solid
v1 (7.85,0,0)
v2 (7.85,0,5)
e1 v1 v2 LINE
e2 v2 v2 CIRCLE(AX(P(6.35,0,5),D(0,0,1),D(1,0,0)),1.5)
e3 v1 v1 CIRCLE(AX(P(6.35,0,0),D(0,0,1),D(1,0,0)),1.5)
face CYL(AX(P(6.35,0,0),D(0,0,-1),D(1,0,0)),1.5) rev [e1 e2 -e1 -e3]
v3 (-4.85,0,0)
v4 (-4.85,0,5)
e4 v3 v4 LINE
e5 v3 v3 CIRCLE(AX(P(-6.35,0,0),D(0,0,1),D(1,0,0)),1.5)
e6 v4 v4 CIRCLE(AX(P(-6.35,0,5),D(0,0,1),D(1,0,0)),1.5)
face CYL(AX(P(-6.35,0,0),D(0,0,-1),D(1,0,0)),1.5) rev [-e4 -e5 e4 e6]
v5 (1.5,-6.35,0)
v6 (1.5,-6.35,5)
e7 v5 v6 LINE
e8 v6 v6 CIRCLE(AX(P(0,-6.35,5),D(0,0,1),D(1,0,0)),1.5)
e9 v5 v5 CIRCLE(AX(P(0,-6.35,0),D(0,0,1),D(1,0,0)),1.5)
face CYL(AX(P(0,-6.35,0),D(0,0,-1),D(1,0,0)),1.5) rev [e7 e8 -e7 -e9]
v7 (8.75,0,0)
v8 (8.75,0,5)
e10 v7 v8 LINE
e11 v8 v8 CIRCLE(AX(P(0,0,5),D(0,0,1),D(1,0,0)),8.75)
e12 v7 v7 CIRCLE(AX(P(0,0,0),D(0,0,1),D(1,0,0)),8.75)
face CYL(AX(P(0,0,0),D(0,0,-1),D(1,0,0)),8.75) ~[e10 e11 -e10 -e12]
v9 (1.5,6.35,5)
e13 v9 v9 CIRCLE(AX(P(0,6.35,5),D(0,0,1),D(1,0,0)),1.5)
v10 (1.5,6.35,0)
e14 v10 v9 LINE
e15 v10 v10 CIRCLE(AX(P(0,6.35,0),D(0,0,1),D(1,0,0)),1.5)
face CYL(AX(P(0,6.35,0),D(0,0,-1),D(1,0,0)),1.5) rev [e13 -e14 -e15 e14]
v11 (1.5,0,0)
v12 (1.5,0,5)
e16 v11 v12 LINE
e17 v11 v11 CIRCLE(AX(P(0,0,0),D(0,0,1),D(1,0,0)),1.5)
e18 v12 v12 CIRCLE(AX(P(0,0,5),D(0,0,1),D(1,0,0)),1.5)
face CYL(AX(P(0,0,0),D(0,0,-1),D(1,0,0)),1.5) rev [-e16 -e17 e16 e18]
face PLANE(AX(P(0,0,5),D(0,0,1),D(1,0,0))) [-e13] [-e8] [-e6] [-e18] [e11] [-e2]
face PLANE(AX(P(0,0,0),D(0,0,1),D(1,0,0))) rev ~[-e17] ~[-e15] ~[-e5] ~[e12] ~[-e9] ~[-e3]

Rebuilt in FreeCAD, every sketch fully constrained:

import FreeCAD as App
import Part
import Sketcher
from FreeCAD import Vector
Q = App.Units.Quantity

doc = App.newDocument("Part")
params = doc.addObject("Spreadsheet::Sheet", "Params")
for row, (alias, value) in enumerate([
    ("sketch1_diameter", "3 mm"),
    ("sketch1_diameter2", "17.5 mm"),
    ("pad1_length", "5 mm"),
], start=1):
    params.set(f"A{row}", alias)
    params.set(f"B{row}", "=" + value)
    params.setAlias(f"B{row}", alias)

body = doc.addObject("PartDesign::Body", "Body")

sketch1 = body.newObject("Sketcher::SketchObject", "Sketch")
sketch1.AttachmentSupport = (doc.getObject("XY_Plane"), [""])
sketch1.MapMode = "FlatFace"
sketch1.addGeometry([
    Part.Circle(Vector(0, 0, 0), Vector(0, 0, 1), 8.8),
    Part.Circle(Vector(0, -6.3, 0), Vector(0, 0, 1), 1.5),
    Part.Circle(Vector(-6.3, 0, 0), Vector(0, 0, 1), 1.5),
    Part.Circle(Vector(0, 0, 0), Vector(0, 0, 1), 1.5),
    Part.Circle(Vector(6.3, 0, 0), Vector(0, 0, 1), 1.5),
    Part.Circle(Vector(0, 6.3, 0), Vector(0, 0, 1), 1.5),
], False)
sketch1.addConstraint([
    Sketcher.Constraint("Coincident", 0, 3, -1, 1),
    Sketcher.Constraint("Coincident", 3, 3, -1, 1),
    Sketcher.Constraint("Equal", 1, 2),
    Sketcher.Constraint("Equal", 2, 3),
    Sketcher.Constraint("Equal", 3, 4),
    Sketcher.Constraint("Equal", 4, 5),
    Sketcher.Constraint("Symmetric", 2, 3, 4, 3, -1, 1),
    Sketcher.Constraint("Symmetric", 1, 3, 5, 3, -1, 1),
    Sketcher.Constraint("PointOnObject", 1, 3, -2),
    Sketcher.Constraint("PointOnObject", 2, 3, -1),
    Sketcher.Constraint("Diameter", 1, Q("3 mm")),
    Sketcher.Constraint("Diameter", 0, Q("17.5 mm")),
    Sketcher.Constraint("DistanceY", 1, 3, -1, 1, Q("6.35 mm")),
    Sketcher.Constraint("DistanceX", 2, 3, -1, 1, Q("6.35 mm")),
])
sketch1.setExpression("Constraints[10]", "Params.sketch1_diameter")
sketch1.setExpression("Constraints[11]", "Params.sketch1_diameter2")
pad1 = body.newObject("PartDesign::Pad", "Pad")
pad1.Profile = sketch1
pad1.setExpression("Length", "Params.pad1_length")

doc.recompute()
